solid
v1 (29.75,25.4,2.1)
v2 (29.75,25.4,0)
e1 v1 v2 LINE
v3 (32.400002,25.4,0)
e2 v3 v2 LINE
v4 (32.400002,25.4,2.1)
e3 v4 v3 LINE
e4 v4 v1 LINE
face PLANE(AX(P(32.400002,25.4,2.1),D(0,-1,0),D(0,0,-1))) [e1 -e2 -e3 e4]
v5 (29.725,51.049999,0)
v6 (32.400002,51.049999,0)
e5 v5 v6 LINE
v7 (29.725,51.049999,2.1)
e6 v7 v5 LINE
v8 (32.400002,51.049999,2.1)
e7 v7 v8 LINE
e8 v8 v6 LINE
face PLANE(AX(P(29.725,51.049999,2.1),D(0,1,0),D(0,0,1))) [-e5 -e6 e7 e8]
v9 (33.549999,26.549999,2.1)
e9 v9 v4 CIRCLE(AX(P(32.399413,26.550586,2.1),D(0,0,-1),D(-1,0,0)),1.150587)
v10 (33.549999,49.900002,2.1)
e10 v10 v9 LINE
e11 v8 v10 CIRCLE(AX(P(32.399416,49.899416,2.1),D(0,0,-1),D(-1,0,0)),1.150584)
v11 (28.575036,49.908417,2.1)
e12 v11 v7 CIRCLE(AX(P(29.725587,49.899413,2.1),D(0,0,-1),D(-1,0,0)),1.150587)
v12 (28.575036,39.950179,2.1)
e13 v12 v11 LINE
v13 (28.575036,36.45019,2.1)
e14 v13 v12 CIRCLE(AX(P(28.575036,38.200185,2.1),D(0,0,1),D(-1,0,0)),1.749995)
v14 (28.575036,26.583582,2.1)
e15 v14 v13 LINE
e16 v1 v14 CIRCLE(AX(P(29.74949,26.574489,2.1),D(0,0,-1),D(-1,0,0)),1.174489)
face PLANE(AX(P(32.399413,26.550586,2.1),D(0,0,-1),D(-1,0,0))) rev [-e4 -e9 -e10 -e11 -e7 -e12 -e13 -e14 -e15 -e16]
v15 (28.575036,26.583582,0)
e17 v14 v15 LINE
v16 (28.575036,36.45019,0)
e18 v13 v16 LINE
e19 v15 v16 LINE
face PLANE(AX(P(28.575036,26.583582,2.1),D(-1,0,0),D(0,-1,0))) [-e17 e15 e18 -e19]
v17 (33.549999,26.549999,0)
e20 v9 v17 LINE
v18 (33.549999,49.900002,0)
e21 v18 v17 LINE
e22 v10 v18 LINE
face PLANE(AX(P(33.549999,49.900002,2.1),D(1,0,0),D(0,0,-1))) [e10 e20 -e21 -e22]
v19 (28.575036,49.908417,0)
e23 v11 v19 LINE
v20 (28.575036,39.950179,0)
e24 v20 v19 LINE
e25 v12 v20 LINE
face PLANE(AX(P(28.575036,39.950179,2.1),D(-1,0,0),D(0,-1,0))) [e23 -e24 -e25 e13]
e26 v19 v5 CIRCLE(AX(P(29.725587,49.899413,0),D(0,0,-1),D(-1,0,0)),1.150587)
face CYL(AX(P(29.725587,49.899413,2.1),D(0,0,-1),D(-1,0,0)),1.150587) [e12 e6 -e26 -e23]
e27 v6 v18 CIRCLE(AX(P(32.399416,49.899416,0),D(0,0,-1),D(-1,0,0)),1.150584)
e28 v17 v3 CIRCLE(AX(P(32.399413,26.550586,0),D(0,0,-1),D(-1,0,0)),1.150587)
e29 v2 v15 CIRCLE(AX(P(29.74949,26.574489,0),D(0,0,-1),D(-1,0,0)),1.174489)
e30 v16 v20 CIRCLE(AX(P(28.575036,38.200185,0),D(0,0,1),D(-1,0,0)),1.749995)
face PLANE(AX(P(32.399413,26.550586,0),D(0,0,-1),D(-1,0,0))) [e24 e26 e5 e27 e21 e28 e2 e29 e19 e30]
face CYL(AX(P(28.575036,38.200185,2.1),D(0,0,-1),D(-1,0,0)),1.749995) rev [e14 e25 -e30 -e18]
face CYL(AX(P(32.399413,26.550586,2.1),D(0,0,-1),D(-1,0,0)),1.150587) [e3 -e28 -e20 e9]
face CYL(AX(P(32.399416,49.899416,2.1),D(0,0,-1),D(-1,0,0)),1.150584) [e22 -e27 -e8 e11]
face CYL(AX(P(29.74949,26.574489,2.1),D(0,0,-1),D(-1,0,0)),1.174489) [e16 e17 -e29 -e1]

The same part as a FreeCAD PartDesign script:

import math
import FreeCAD as App
import Part
import Sketcher

doc = App.newDocument("Part")
body = doc.addObject("PartDesign::Body", "Body")

# Sketch on XY plane
sketch1 = body.newObject("Sketcher::SketchObject", "Sketch")
sketch1.AttachmentSupport = (doc.getObject("XY_Plane"), [""])
sketch1.MapMode = "FlatFace"
sketch1.addGeometry(Part.LineSegment(App.Vector(32.4, 25.4, 0), App.Vector(29.8, 25.4, 0)), False)
sketch1.addGeometry(Part.ArcOfCircle(Part.Circle(App.Vector(29.7, 26.6, 0), App.Vector(0, 0, 1), 1.2), math.radians(180), math.radians(270)), False)
sketch1.addGeometry(Part.LineSegment(App.Vector(28.6, 26.6, 0), App.Vector(28.6, 36.5, 0)), False)
sketch1.addGeometry(Part.ArcOfCircle(Part.Circle(App.Vector(28.6, 38.2, 0), App.Vector(0, 0, 1), 1.7), math.radians(-90), math.radians(90)), False)
sketch1.addGeometry(Part.LineSegment(App.Vector(28.6, 40, 0), App.Vector(28.6, 49.9, 0)), False)
sketch1.addGeometry(Part.ArcOfCircle(Part.Circle(App.Vector(29.7, 49.9, 0), App.Vector(0, 0, 1), 1.2), math.radians(90), math.radians(180)), False)
sketch1.addGeometry(Part.LineSegment(App.Vector(29.7, 51, 0), App.Vector(32.4, 51, 0)), False)
sketch1.addGeometry(Part.ArcOfCircle(Part.Circle(App.Vector(32.4, 49.9, 0), App.Vector(0, 0, 1), 1.2), math.radians(0), math.radians(90)), False)
sketch1.addGeometry(Part.LineSegment(App.Vector(33.5, 49.9, 0), App.Vector(33.5, 26.5, 0)), False)
sketch1.addGeometry(Part.ArcOfCircle(Part.Circle(App.Vector(32.4, 26.6, 0), App.Vector(0, 0, 1), 1.2), math.radians(-90), math.radians(0)), False)
sketch1.addConstraint(Sketcher.Constraint("Coincident", 0, 2, 1, 2))
sketch1.addConstraint(Sketcher.Constraint("Coincident", 1, 1, 2, 1))
sketch1.addConstraint(Sketcher.Constraint("Coincident", 2, 2, 3, 1))
sketch1.addConstraint(Sketcher.Constraint("Coincident", 3, 2, 4, 1))
sketch1.addConstraint(Sketcher.Constraint("Coincident", 4, 2, 5, 2))
sketch1.addConstraint(Sketcher.Constraint("Coincident", 5, 1, 6, 1))
sketch1.addConstraint(Sketcher.Constraint("Coincident", 6, 2, 7, 2))
sketch1.addConstraint(Sketcher.Constraint("Coincident", 7, 1, 8, 1))
sketch1.addConstraint(Sketcher.Constraint("Coincident", 8, 2, 9, 2))
sketch1.addConstraint(Sketcher.Constraint("Coincident", 9, 1, 0, 1))
sketch1.addConstraint(Sketcher.Constraint("Horizontal", 0))
sketch1.addConstraint(Sketcher.Constraint("Vertical", 2))
sketch1.addConstraint(Sketcher.Constraint("Vertical", 4))
sketch1.addConstraint(Sketcher.Constraint("Horizontal", 6))
sketch1.addConstraint(Sketcher.Constraint("Vertical", 8))
sketch1.addConstraint(Sketcher.Constraint("Equal", 5, 9))
sketch1.addConstraint(Sketcher.Constraint("Vertical", 3, 3, 1, 1))
sketch1.addConstraint(Sketcher.Constraint("Vertical", 2, 2, 3, 2))
sketch1.addConstraint(Sketcher.Constraint("Vertical", 6, 2, 9, 1))
sketch1.addConstraint(Sketcher.Constraint("DistanceX", 0, 2, 0, 1, 2.650002))
sketch1.addConstraint(Sketcher.Constraint("DistanceY", -1, 1, 0, 2, 25.4))
sketch1.addConstraint(Sketcher.Constraint("DistanceX", -1, 1, 6, 2, 32.400002))
sketch1.addConstraint(Sketcher.Constraint("DistanceY", -1, 1, 7, 1, 49.900002))
sketch1.addConstraint(Sketcher.Constraint("DistanceX", 0, 2, 8, 2, 3.799999))
sketch1.addConstraint(Sketcher.Constraint("DistanceX", 6, 1, 6, 2, 2.675001))
sketch1.addConstraint(Sketcher.Constraint("DistanceY", -1, 1, 5, 1, 51.049999))
sketch1.addConstraint(Sketcher.Constraint("DistanceY", -1, 1, 8, 2, 26.549999))
sketch1.addConstraint(Sketcher.Constraint("Radius", 1, 1.174489))
sketch1.addConstraint(Sketcher.Constraint("Radius", 3, 1.749995))
sketch1.addConstraint(Sketcher.Constraint("Radius", 5, 1.150587))
sketch1.addConstraint(Sketcher.Constraint("Radius", 7, 1.150584))
sketch1.addConstraint(Sketcher.Constraint("DistanceY", 7, 3, 4, 2, 0.009002))
sketch1.addConstraint(Sketcher.Constraint("DistanceY", 2, 1, 2, 2, 9.866609))
sketch1.addConstraint(Sketcher.Constraint("DistanceY", 4, 1, 4, 2, 9.958238))
sketch1.addConstraint(Sketcher.Constraint("DistanceX", -1, 1, 1, 3, 29.74949))
pad1 = body.newObject("PartDesign::Pad", "Pad")
pad1.Profile = sketch1
pad1.Length = 2.1

doc.recompute()
